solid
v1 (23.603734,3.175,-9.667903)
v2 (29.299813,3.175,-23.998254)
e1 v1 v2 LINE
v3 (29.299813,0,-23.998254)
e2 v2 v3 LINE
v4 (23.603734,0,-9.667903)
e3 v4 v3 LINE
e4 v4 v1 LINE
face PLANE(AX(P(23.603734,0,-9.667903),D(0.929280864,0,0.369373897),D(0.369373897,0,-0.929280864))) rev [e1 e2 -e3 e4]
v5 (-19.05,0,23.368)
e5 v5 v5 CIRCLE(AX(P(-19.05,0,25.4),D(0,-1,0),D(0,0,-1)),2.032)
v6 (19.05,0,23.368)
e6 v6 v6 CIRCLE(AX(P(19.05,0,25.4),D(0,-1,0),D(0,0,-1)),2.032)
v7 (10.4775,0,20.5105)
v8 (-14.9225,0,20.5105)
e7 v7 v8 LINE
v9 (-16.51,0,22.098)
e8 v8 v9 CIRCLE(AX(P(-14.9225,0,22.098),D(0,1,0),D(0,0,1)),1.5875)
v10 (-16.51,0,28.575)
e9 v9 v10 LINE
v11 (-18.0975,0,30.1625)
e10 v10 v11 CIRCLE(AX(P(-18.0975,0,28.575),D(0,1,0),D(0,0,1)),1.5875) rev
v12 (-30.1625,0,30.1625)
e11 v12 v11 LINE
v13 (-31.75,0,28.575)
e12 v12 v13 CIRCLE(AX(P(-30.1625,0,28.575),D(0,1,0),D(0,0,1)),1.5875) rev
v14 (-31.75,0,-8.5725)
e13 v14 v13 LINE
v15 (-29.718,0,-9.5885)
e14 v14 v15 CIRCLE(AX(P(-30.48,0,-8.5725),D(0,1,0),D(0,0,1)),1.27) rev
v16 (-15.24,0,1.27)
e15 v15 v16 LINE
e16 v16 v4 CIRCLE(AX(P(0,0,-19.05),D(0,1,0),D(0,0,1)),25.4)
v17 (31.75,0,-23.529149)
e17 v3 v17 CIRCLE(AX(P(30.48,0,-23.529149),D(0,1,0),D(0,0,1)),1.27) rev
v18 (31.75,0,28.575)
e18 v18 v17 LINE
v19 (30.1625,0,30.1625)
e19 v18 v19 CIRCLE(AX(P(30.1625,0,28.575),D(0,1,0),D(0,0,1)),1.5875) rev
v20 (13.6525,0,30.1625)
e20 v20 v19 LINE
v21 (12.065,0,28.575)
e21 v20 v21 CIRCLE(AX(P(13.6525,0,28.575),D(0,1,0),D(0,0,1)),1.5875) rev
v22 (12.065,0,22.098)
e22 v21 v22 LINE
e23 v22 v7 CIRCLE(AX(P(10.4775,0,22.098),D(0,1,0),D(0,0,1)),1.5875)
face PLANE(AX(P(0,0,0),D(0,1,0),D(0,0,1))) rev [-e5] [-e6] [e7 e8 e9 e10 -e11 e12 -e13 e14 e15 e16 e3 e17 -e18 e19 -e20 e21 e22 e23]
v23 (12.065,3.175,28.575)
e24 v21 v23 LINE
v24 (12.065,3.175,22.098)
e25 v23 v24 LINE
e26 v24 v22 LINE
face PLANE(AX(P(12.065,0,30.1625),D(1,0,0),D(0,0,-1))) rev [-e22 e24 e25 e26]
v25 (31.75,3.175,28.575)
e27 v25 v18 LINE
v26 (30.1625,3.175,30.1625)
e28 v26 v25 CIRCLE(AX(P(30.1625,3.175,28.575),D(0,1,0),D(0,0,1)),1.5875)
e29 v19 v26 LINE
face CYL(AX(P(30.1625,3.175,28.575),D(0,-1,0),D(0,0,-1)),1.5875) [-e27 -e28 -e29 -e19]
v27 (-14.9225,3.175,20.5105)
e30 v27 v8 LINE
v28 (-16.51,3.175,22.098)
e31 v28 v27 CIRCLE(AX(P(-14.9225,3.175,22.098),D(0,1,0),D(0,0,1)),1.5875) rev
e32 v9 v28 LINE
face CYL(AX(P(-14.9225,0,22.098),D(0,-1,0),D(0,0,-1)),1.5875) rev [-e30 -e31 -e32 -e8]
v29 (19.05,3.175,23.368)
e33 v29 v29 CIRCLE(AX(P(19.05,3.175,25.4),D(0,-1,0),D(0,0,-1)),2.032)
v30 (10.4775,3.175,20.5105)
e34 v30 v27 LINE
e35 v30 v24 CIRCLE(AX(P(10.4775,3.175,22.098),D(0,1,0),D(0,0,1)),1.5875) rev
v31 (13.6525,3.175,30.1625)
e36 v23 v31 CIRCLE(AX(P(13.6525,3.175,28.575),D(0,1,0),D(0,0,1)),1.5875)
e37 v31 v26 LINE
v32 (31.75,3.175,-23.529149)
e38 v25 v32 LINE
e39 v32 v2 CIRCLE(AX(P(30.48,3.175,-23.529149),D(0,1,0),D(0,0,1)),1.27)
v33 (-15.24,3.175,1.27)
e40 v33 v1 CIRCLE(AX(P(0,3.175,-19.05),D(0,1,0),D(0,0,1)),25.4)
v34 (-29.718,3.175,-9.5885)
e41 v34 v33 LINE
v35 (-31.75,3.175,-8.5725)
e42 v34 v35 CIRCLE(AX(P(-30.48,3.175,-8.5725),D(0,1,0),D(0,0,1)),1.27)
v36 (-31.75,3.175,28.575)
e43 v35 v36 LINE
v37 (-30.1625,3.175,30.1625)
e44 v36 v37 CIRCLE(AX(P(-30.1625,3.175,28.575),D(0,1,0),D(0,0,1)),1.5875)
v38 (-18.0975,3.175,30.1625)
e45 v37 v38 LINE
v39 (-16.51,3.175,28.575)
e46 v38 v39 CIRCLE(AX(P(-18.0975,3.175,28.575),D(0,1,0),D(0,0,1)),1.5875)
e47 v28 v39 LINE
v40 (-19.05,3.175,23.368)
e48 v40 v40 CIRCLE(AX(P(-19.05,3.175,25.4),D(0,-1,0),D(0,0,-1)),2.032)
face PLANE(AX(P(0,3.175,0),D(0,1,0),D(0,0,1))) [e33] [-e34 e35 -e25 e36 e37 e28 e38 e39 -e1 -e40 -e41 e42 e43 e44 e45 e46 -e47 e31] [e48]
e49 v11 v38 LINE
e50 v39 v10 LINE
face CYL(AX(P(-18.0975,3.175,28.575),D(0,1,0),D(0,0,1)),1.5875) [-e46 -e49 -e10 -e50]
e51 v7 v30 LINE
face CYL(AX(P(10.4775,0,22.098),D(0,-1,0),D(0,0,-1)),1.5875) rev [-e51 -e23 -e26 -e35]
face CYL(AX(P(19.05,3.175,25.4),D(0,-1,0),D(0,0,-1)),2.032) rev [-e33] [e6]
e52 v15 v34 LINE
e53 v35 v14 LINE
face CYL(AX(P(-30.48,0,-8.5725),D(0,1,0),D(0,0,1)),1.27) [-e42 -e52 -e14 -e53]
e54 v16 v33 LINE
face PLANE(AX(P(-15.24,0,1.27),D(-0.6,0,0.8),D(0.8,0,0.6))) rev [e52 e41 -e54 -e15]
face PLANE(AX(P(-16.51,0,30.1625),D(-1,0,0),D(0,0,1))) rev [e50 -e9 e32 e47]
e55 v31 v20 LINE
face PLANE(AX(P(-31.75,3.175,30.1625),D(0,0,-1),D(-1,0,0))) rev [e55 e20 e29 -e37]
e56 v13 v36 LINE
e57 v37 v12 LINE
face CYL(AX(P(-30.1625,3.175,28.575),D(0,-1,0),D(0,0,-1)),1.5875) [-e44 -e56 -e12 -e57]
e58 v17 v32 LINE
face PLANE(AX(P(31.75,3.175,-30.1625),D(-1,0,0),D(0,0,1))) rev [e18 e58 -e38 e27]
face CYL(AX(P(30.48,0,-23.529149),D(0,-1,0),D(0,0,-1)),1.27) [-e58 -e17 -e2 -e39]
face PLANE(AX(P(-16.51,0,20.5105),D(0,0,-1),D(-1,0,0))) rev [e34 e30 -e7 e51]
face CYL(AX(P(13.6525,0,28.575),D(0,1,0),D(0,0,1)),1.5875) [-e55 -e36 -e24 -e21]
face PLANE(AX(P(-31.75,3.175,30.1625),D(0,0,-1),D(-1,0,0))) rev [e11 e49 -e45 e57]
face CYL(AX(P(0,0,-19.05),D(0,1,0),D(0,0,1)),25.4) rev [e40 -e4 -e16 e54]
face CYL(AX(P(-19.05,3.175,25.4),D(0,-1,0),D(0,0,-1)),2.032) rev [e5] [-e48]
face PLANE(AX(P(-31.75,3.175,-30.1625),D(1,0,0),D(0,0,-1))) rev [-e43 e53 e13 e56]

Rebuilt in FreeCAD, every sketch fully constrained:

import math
import FreeCAD as App
import Part
import Sketcher
Q = App.Units.Quantity


def edges_at(feature, points):
    """Names of the edges that pass closest to the given points."""
    edges = feature.Shape.Edges
    near = lambda p: min(range(len(edges)), key=lambda i: edges[i].distToShape(Part.Vertex(*p))[0])
    return sorted({f"Edge{near(p) + 1}" for p in points})


def add_polygon(sketch, points):
    """Adds a closed chain of lines whose ends are joined by coincident constraints."""
    first, n = sketch.GeometryCount, len(points)
    for a, b in zip(points, points[1:] + points[:1]):
        sketch.addGeometry(Part.LineSegment(App.Vector(*a, 0), App.Vector(*b, 0)), False)
    for i in range(n):
        sketch.addConstraint(Sketcher.Constraint("Coincident", first + i, 2, first + (i + 1) % n, 1))

doc = App.newDocument("Part")
body = doc.addObject("PartDesign::Body", "Body")

# Sketch on XZ plane
sketch1 = doc.addObject("Sketcher::SketchObject", "Sketch")
body.addObject(sketch1)
sketch1.AttachmentSupport = (doc.XZ_Plane, [""])
sketch1.MapMode = "FlatFace"
add_polygon(sketch1, [(-31.75, -30.1625), (-31.75, 30.1625), (31.75, 30.1625), (31.75, -30.1625)])  # lines 0-3
sketch1.addConstraint(Sketcher.Constraint("Vertical", 0))
sketch1.addConstraint(Sketcher.Constraint("Horizontal", 1))
sketch1.addConstraint(Sketcher.Constraint("Vertical", 2))
sketch1.addConstraint(Sketcher.Constraint("Horizontal", 3))
sketch1.addConstraint(Sketcher.Constraint("Symmetric", 0, 2, 2, 2, -1, 1))
sketch1.addConstraint(Sketcher.Constraint("DistanceX", 1, 1, 1, 2, Q("2.5 in")))
sketch1.addConstraint(Sketcher.Constraint("DistanceY", 0, 1, 0, 2, Q("2.375 in")))
pad1 = doc.addObject("PartDesign::Pad", "Pad")
body.addObject(pad1)
pad1.Profile = sketch1
pad1.Length = Q("0.125 in")
pad1.Reversed = True

# Sketch on XZ plane
sketch2 = doc.addObject("Sketcher::SketchObject", "Sketch001")
body.addObject(sketch2)
sketch2.AttachmentSupport = (doc.XZ_Plane, [""])
sketch2.MapMode = "FlatFace"
sketch2.addGeometry(Part.Circle(App.Vector(19.05, 25.4, 0), App.Vector(0, 0, 1), 2.032), False)
sketch2.addGeometry(Part.Circle(App.Vector(-19.05, 25.4, 0), App.Vector(0, 0, 1), 2.032), False)
sketch2.addConstraint(Sketcher.Constraint("Equal", 0, 1))
sketch2.addConstraint(Sketcher.Constraint("Symmetric", 0, 3, 1, 3, -2))
sketch2.addConstraint(Sketcher.Constraint("Diameter", 0, Q("0.16 in")))
sketch2.addConstraint(Sketcher.Constraint("DistanceY", -1, 1, 0, 3, Q("1 in")))
sketch2.addConstraint(Sketcher.Constraint("DistanceX", 1, 3, 0, 3, Q("1.5 in")))
pocket1 = doc.addObject("PartDesign::Pocket", "Pocket")
body.addObject(pocket1)
pocket1.Profile = sketch2
pocket1.Type = "ThroughAll"

# Sketch on XZ plane
sketch3 = doc.addObject("Sketcher::SketchObject", "Sketch002")
body.addObject(sketch3)
sketch3.AttachmentSupport = (doc.XZ_Plane, [""])
sketch3.MapMode = "FlatFace"
sketch3.AttachmentOffset = App.Placement(App.Vector(0, 0, -0.125 * 25.4), App.Rotation())
add_polygon(sketch3, [(-16.51, 20.5105), (-16.51, 30.1625), (12.065, 30.1625), (12.065, 20.5105)])  # lines 0-3
sketch3.addConstraint(Sketcher.Constraint("Vertical", 0))
sketch3.addConstraint(Sketcher.Constraint("Horizontal", 1))
sketch3.addConstraint(Sketcher.Constraint("Vertical", 2))
sketch3.addConstraint(Sketcher.Constraint("Horizontal", 3))
sketch3.addConstraint(Sketcher.Constraint("DistanceY", 0, 1, 0, 2, Q("0.38 in")))
sketch3.addConstraint(Sketcher.Constraint("DistanceX", 1, 1, 1, 2, Q("1.125 in")))
sketch3.addConstraint(Sketcher.Constraint("DistanceX", 0, 2, -1, 1, Q("0.65 in")))
sketch3.addConstraint(Sketcher.Constraint("DistanceY", -1, 1, 0, 2, Q("1.1875 in")))
pocket2 = doc.addObject("PartDesign::Pocket", "Pocket001")
body.addObject(pocket2)
pocket2.Profile = sketch3
pocket2.Type = "ThroughAll"
pocket2.Reversed = True
doc.recompute()

fillet = doc.addObject("PartDesign::Fillet", "Fillet")
body.addObject(fillet)
fillet.Base = (pocket2, edges_at(pocket2, [
    (-16.51, 1.587, 30.163),
    (-16.51, 1.587, 20.511),
    (12.065, 1.587, 20.511),
    (12.065, 1.587, 30.163),
    (31.75, 1.587, 30.163),
    (-31.75, 1.587, 30.163),
]))
fillet.Radius = Q("0.0625 in")

# Sketch on XZ plane
sketch4 = doc.addObject("Sketcher::SketchObject", "Sketch003")
body.addObject(sketch4)
sketch4.AttachmentSupport = (doc.XZ_Plane, [""])
sketch4.MapMode = "FlatFace"
sketch4.AttachmentOffset = App.Placement(App.Vector(0, 0, -0.125 * 25.4), App.Rotation())
sketch4.addGeometry(Part.LineSegment(App.Vector(-31.75, -11.1125, 0), App.Vector(-15.24, 1.27, 0)), False)
sketch4.addGeometry(Part.ArcOfCircle(Part.Circle(App.Vector(0, -19.05, 0), App.Vector(0, 0, 1), 25.4), math.radians(21.677009), math.radians(126.869898)), False)
sketch4.addGeometry(Part.LineSegment(App.Vector(23.603734, -9.667903, 0), App.Vector(31.75, -30.1625, 0)), False)
sketch4.addGeometry(Part.LineSegment(App.Vector(31.75, -30.1625, 0), App.Vector(-31.75, -30.1625, 0)), False)
sketch4.addGeometry(Part.LineSegment(App.Vector(-31.75, -30.1625, 0), App.Vector(-31.75, -11.1125, 0)), False)
sketch4.addConstraint(Sketcher.Constraint("Tangent", 0, 2, 1, 2))
sketch4.addConstraint(Sketcher.Constraint("Tangent", 1, 1, 2, 1))
sketch4.addConstraint(Sketcher.Constraint("Coincident", 2, 2, 3, 1))
sketch4.addConstraint(Sketcher.Constraint("Coincident", 3, 2, 4, 1))
sketch4.addConstraint(Sketcher.Constraint("Coincident", 4, 2, 0, 1))
sketch4.addConstraint(Sketcher.Constraint("Horizontal", 3))
sketch4.addConstraint(Sketcher.Constraint("Vertical", 4))
sketch4.addConstraint(Sketcher.Constraint("PointOnObject", 1, 3, -2))
sketch4.addConstraint(Sketcher.Constraint("Radius", 1, Q("1 in")))
sketch4.addConstraint(Sketcher.Constraint("DistanceX", 3, 2, 3, 1, Q("2.5 in")))
sketch4.addConstraint(Sketcher.Constraint("DistanceY", 4, 1, 4, 2, Q("0.75 in")))
sketch4.addConstraint(Sketcher.Constraint("DistanceX", 0, 2, -1, 1, Q("0.6 in")))
sketch4.addConstraint(Sketcher.Constraint("DistanceY", 1, 3, -1, 1, Q("0.75 in")))
sketch4.addConstraint(Sketcher.Constraint("DistanceX", -1, 1, 2, 2, Q("1.25 in")))
pocket3 = doc.addObject("PartDesign::Pocket", "Pocket002")
body.addObject(pocket3)
pocket3.Profile = sketch4
pocket3.Type = "ThroughAll"
pocket3.Reversed = True
doc.recompute()

fillet2 = doc.addObject("PartDesign::Fillet", "Fillet001")
body.addObject(fillet2)
fillet2.Base = (pocket3, edges_at(pocket3, [(31.75, 1.587, -30.163), (-31.75, 1.587, -11.113)]))
fillet2.Radius = Q("0.05 in")

doc.recompute()
